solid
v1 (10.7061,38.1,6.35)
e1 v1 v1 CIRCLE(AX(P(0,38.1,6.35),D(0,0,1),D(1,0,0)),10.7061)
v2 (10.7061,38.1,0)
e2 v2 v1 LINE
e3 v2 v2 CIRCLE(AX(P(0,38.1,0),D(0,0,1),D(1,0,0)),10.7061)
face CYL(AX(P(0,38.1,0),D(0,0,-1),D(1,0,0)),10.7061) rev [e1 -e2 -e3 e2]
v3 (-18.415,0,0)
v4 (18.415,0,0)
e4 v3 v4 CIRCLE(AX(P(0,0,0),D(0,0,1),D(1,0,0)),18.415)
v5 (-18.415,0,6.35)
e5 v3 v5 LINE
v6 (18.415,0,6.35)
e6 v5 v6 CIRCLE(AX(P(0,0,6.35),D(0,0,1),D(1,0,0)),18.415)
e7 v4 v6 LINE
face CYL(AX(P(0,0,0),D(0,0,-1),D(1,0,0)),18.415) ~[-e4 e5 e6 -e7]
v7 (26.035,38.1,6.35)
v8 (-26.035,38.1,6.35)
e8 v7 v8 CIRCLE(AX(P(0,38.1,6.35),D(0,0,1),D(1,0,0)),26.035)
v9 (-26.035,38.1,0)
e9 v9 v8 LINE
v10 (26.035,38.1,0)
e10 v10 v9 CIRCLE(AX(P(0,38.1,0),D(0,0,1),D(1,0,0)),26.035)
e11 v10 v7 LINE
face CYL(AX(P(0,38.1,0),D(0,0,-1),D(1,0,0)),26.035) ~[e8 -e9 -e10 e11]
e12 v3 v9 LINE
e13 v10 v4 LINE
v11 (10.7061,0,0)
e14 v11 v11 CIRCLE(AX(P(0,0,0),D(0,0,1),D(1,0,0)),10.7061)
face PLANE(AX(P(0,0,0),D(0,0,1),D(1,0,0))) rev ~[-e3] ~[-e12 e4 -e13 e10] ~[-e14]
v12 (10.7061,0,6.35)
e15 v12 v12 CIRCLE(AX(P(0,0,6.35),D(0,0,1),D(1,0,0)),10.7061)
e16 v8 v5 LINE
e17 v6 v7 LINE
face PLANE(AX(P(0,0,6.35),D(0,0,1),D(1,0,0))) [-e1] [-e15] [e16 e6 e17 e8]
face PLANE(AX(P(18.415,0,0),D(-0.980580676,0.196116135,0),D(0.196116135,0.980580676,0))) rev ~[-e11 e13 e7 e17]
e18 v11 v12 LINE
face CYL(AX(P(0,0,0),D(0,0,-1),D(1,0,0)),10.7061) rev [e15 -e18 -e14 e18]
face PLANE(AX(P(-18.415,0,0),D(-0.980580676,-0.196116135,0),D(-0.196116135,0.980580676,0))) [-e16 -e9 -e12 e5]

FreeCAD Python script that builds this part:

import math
import FreeCAD as App
import Part
import Sketcher
from FreeCAD import Vector
Q = App.Units.Quantity

doc = App.newDocument("Part")
params = doc.addObject("Spreadsheet::Sheet", "Params")
for row, (alias, value) in enumerate([
    ("sketch1_diameter", "0.843 in"),
    ("sketch1_radius", "0.725 in"),
    ("sketch1_radius2", "1.025 in"),
    ("pad1_length", "0.25 in"),
], start=1):
    params.set(f"A{row}", alias)
    params.set(f"B{row}", "=" + value)
    params.setAlias(f"B{row}", alias)

body = doc.addObject("PartDesign::Body", "Body")

# Sketch on XY plane
sketch1 = body.newObject("Sketcher::SketchObject", "Sketch")
sketch1.AttachmentSupport = (doc.getObject("XY_Plane"), [""])
sketch1.MapMode = "FlatFace"
sketch1.addGeometry([
    Part.ArcOfCircle(Part.Circle(Vector(0, 0, 0), Vector(0, 0, 1), 18), math.radians(180), math.radians(360)),  # 0
    Part.LineSegment(Vector(18, 0, 0), Vector(26, 38, 0)),  # 1
    Part.ArcOfCircle(Part.Circle(Vector(0, 38, 0), Vector(0, 0, 1), 26), math.radians(0), math.radians(180)),  # 2
    Part.LineSegment(Vector(-26, 38, 0), Vector(-18, 0, 0)),  # 3
    Part.Circle(Vector(0, 0, 0), Vector(0, 0, 1), 11),  # 4
    Part.Circle(Vector(0, 38, 0), Vector(0, 0, 1), 11),  # 5
], False)
sketch1.addConstraint([
    Sketcher.Constraint("Coincident", 0, 2, 1, 1),
    Sketcher.Constraint("Coincident", 1, 2, 2, 1),
    Sketcher.Constraint("Coincident", 2, 2, 3, 1),
    Sketcher.Constraint("Coincident", 3, 2, 0, 1),
    Sketcher.Constraint("Coincident", 0, 3, -1, 1),
    Sketcher.Constraint("Coincident", 4, 3, -1, 1),
    Sketcher.Constraint("Coincident", 5, 3, 2, 3),
    Sketcher.Constraint("Equal", 4, 5),
    Sketcher.Constraint("Symmetric", 1, 2, 2, 2, -2),
    Sketcher.Constraint("PointOnObject", 0, 2, -1),
    Sketcher.Constraint("PointOnObject", 3, 2, -1),
    Sketcher.Constraint("Horizontal", 5, 3, 1, 2),
    Sketcher.Constraint("Diameter", 4, Q("0.843 in")),
    Sketcher.Constraint("Radius", 0, Q("0.725 in")),
    Sketcher.Constraint("Radius", 2, Q("1.025 in")),
    Sketcher.Constraint("DistanceY", -1, 1, 2, 3, Q("1.5 in")),
])
sketch1.setExpression("Constraints[12]", "Params.sketch1_diameter")
sketch1.setExpression("Constraints[13]", "Params.sketch1_radius")
sketch1.setExpression("Constraints[14]", "Params.sketch1_radius2")
pad1 = body.newObject("PartDesign::Pad", "Pad")
pad1.Profile = sketch1
pad1.setExpression("Length", "Params.pad1_length")

doc.recompute()
